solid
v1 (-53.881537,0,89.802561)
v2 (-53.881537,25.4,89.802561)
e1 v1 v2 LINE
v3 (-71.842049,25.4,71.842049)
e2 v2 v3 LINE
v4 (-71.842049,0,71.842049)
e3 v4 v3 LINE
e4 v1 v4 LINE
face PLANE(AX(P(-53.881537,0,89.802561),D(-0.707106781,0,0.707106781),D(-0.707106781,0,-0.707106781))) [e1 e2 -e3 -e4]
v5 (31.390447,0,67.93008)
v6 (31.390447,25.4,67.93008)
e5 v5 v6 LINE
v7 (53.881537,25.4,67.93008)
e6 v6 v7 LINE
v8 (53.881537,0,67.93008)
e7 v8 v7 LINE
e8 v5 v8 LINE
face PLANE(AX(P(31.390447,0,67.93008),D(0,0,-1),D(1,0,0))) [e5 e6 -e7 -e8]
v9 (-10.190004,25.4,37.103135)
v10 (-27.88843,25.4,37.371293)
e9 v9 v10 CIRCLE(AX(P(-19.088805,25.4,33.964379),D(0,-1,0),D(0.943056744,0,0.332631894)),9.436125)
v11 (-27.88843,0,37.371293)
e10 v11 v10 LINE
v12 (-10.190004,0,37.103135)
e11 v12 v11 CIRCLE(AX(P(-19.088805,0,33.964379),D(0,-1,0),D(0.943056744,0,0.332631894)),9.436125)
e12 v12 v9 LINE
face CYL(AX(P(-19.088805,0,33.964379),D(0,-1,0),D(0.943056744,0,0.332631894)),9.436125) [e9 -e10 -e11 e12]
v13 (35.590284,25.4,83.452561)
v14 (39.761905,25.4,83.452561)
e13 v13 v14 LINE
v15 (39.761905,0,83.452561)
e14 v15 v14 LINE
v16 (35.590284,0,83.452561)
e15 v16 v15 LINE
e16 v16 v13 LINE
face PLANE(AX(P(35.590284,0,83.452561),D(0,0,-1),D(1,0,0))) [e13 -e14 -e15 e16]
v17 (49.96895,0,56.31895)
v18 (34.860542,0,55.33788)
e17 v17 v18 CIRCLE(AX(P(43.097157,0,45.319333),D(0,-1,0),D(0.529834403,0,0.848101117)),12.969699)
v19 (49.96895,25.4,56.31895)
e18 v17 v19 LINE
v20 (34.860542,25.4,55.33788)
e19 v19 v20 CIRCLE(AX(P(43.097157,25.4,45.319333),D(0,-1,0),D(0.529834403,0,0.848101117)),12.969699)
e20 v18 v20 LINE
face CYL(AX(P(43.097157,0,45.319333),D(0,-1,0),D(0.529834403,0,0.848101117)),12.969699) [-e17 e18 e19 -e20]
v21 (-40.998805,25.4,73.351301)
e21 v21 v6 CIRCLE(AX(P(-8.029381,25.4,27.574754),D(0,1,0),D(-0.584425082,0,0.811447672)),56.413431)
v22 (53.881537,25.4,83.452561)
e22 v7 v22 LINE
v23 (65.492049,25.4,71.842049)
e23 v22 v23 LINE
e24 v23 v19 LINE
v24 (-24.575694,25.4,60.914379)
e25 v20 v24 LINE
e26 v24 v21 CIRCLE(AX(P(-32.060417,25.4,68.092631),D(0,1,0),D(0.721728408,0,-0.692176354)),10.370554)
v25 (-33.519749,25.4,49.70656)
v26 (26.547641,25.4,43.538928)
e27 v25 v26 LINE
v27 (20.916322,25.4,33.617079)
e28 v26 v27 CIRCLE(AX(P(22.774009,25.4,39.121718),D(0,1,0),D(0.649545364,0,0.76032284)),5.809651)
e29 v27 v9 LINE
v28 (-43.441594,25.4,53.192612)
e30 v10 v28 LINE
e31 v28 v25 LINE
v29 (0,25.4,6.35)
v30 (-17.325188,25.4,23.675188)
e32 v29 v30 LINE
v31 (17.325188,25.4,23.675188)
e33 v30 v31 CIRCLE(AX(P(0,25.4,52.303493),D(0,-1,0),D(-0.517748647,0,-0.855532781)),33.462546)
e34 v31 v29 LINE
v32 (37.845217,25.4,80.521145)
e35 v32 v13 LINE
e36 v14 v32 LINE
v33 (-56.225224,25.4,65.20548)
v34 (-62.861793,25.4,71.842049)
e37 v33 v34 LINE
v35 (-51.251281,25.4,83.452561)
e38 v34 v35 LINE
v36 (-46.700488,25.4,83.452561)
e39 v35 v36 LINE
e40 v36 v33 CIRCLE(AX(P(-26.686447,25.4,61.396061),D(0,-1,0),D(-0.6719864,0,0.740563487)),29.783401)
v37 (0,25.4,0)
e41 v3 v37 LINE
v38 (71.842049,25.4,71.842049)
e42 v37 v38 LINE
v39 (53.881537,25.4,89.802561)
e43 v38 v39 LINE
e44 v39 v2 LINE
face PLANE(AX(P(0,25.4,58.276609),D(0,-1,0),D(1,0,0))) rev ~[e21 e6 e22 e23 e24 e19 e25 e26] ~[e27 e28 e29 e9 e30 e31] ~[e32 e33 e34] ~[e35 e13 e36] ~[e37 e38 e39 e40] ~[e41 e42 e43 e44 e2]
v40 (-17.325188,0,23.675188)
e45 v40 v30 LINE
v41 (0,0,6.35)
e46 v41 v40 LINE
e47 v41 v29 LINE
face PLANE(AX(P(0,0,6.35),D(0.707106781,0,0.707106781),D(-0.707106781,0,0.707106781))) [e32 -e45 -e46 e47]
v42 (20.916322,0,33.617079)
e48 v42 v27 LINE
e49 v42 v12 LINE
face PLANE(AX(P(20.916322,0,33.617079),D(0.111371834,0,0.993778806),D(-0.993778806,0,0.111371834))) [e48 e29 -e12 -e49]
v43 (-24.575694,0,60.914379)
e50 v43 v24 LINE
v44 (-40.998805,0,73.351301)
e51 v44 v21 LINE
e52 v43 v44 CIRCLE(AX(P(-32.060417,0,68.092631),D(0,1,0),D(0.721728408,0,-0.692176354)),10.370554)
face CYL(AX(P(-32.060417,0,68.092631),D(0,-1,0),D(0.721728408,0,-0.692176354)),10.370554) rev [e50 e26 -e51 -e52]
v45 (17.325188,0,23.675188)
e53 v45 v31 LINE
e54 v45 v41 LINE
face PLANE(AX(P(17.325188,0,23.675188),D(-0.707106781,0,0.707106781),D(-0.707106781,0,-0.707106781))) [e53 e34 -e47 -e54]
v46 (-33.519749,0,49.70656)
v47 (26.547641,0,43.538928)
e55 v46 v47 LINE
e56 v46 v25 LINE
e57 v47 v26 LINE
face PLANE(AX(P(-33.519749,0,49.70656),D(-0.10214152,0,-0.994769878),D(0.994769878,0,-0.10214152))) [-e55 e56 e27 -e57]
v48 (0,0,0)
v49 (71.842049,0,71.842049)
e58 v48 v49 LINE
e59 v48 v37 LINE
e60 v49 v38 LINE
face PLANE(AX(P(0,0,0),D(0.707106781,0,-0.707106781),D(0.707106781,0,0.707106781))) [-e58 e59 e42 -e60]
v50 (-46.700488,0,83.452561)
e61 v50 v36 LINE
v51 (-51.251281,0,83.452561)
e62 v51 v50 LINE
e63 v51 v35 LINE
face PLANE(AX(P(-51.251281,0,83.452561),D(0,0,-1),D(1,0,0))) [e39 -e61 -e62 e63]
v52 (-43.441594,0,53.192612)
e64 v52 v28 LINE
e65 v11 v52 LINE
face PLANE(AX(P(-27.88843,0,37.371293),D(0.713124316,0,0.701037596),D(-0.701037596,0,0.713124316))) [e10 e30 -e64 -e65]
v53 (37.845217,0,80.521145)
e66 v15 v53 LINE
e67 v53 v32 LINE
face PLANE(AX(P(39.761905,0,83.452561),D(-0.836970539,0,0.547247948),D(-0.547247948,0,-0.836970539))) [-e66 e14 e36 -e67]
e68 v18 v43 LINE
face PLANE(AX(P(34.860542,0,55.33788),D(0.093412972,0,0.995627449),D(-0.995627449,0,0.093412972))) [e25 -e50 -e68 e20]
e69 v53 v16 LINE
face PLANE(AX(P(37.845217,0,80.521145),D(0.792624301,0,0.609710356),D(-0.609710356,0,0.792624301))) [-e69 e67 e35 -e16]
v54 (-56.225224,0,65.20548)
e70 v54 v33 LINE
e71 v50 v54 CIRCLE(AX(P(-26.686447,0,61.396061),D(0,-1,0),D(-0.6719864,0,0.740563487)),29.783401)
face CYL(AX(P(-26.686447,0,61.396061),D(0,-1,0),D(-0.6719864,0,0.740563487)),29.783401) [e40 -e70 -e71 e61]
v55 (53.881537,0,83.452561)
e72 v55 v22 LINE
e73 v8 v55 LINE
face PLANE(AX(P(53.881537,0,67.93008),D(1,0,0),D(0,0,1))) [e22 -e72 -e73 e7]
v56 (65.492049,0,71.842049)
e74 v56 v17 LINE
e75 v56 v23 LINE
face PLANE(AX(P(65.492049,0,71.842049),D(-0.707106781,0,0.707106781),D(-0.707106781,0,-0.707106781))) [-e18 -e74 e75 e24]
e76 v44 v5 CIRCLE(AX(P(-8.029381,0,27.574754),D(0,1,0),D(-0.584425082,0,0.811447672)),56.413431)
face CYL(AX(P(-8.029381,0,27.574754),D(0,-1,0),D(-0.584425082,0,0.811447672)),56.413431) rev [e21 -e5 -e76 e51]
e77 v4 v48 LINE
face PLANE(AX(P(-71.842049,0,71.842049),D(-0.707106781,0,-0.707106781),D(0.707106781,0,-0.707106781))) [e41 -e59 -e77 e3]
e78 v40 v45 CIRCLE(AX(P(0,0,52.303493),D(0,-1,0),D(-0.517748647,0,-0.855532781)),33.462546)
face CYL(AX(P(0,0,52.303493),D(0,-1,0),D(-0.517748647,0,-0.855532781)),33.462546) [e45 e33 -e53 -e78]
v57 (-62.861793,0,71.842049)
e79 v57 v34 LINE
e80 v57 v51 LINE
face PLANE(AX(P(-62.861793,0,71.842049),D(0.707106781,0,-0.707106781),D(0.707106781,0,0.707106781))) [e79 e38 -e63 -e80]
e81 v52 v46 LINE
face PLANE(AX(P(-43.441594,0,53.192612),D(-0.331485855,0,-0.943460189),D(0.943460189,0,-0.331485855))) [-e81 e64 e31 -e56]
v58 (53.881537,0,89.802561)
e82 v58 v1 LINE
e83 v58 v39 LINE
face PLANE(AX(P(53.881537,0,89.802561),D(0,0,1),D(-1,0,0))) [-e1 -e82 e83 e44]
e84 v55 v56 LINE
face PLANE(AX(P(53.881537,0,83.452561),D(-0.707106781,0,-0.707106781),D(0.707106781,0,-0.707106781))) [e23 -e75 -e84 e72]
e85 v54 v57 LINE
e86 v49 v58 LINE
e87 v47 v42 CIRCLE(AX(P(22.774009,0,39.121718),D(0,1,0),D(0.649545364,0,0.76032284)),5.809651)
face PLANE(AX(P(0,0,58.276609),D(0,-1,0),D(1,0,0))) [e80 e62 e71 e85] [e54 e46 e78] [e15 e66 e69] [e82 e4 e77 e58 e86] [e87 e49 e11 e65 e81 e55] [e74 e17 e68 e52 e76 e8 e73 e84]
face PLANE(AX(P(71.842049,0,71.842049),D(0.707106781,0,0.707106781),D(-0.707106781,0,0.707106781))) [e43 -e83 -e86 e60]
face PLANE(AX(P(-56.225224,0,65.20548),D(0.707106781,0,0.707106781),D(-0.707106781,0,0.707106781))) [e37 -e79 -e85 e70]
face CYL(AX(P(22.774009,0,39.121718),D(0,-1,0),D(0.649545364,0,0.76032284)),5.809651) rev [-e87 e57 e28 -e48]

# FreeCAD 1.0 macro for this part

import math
import FreeCAD as App
import Part
import Sketcher
from FreeCAD import Vector
Q = App.Units.Quantity


def add_polygon(sketch, points):
    """Adds a closed chain of lines whose ends are joined by coincident constraints."""
    first, n = sketch.GeometryCount, len(points)
    for a, b in zip(points, points[1:] + points[:1]):
        sketch.addGeometry(Part.LineSegment(App.Vector(*a, 0), App.Vector(*b, 0)), False)
    for i in range(n):
        sketch.addConstraint(Sketcher.Constraint("Coincident", first + i, 2, first + (i + 1) % n, 1))

doc = App.newDocument("Part")
params = doc.addObject("Spreadsheet::Sheet", "Params")
for row, (alias, value) in enumerate([
    ("sketch1_length", "4 in"),
    ("sketch1_length2", "1 in"),
    ("pad1_length", "1 in"),
], start=1):
    params.set(f"A{row}", alias)
    params.set(f"B{row}", "=" + value)
    params.setAlias(f"B{row}", alias)

body = doc.addObject("PartDesign::Body", "Body")

sketch1 = body.newObject("Sketcher::SketchObject", "Sketch")
sketch1.AttachmentSupport = (doc.getObject("XZ_Plane"), [""])
sketch1.MapMode = "FlatFace"
add_polygon(sketch1, [(-71.842049, 71.842049), (0, 0), (71.842049, 71.842049), (53.881537, 89.802561), (-53.881537, 89.802561)])
sketch1.addGeometry(Part.ArcOfCircle(Part.Circle(Vector(0, 52.303493, 0), Vector(0, 0, 1), 33.462546), math.radians(-121.181356), math.radians(-58.818644)), False)
sketch1.addGeometry(Part.LineSegment(Vector(17.325188, 23.675188, 0), Vector(0, 6.35, 0)), False)
sketch1.addGeometry(Part.LineSegment(Vector(0, 6.35, 0), Vector(-17.325188, 23.675188, 0)), False)
sketch1.addGeometry(Part.ArcOfCircle(Part.Circle(Vector(-19.088805, 33.964379, 0), Vector(0, 0, 1), 9.436125), math.radians(19.428599), math.radians(158.835298)), False)
sketch1.addGeometry(Part.LineSegment(Vector(-27.88843, 37.371293, 0), Vector(-43.441594, 53.192612, 0)), False)
sketch1.addGeometry(Part.LineSegment(Vector(-43.441594, 53.192612, 0), Vector(-33.519749, 49.70656, 0)), False)
sketch1.addGeometry(Part.LineSegment(Vector(-33.519749, 49.70656, 0), Vector(26.547641, 43.538928, 0)), False)
sketch1.addGeometry(Part.ArcOfCircle(Part.Circle(Vector(22.774009, 39.121718, 0), Vector(0, 0, 1), 5.809651), math.radians(-108.648338), math.radians(49.492667)), False)
sketch1.addGeometry(Part.LineSegment(Vector(20.916322, 33.617079, 0), Vector(-10.190004, 37.103135, 0)), False)
sketch1.addGeometry(Part.LineSegment(Vector(-51.251281, 83.452561, 0), Vector(-46.700488, 83.452561, 0)), False)
sketch1.addGeometry(Part.ArcOfCircle(Part.Circle(Vector(-26.686447, 61.396061, 0), Vector(0, 0, 1), 29.783401), math.radians(132.220562), math.radians(172.651506)), False)
sketch1.addGeometry(Part.LineSegment(Vector(-56.225224, 65.20548, 0), Vector(-62.861793, 71.842049, 0)), False)
sketch1.addGeometry(Part.LineSegment(Vector(-62.861793, 71.842049, 0), Vector(-51.251281, 83.452561, 0)), False)
sketch1.addGeometry(Part.LineSegment(Vector(31.390447, 67.93008, 0), Vector(53.881537, 67.93008, 0)), False)
sketch1.addGeometry(Part.LineSegment(Vector(53.881537, 67.93008, 0), Vector(53.881537, 83.452561, 0)), False)
sketch1.addGeometry(Part.LineSegment(Vector(53.881537, 83.452561, 0), Vector(65.492049, 71.842049, 0)), False)
sketch1.addGeometry(Part.LineSegment(Vector(65.492049, 71.842049, 0), Vector(49.96895, 56.31895, 0)), False)
sketch1.addGeometry(Part.ArcOfCircle(Part.Circle(Vector(43.097157, 45.319333, 0), Vector(0, 0, 1), 12.969699), math.radians(58.005733), math.radians(129.424879)), False)
sketch1.addGeometry(Part.LineSegment(Vector(34.860542, 55.33788, 0), Vector(-24.575694, 60.914379, 0)), False)
sketch1.addGeometry(Part.ArcOfCircle(Part.Circle(Vector(-32.060417, 68.092631, 0), Vector(0, 0, 1), 10.370554), math.radians(149.53067), math.radians(316.197366)), False)
sketch1.addGeometry(Part.ArcOfCircle(Part.Circle(Vector(-8.029381, 27.574754, 0), Vector(0, 0, 1), 56.413431), math.radians(45.671859), math.radians(125.762385)), False)
add_polygon(sketch1, [(39.761905, 83.452561), (37.845217, 80.521145), (35.590284, 83.452561)])
sketch1.addConstraint(Sketcher.Constraint("Coincident", 5, 2, 6, 1))
sketch1.addConstraint(Sketcher.Constraint("Coincident", 6, 2, 7, 1))
sketch1.addConstraint(Sketcher.Constraint("Coincident", 7, 2, 5, 1))
sketch1.addConstraint(Sketcher.Constraint("Coincident", 8, 2, 9, 1))
sketch1.addConstraint(Sketcher.Constraint("Coincident", 9, 2, 10, 1))
sketch1.addConstraint(Sketcher.Constraint("Coincident", 10, 2, 11, 1))
sketch1.addConstraint(Sketcher.Constraint("Coincident", 11, 2, 12, 2))
sketch1.addConstraint(Sketcher.Constraint("Coincident", 12, 1, 13, 1))
sketch1.addConstraint(Sketcher.Constraint("Coincident", 13, 2, 8, 1))
sketch1.addConstraint(Sketcher.Constraint("Coincident", 14, 2, 15, 1))
sketch1.addConstraint(Sketcher.Constraint("Coincident", 15, 2, 16, 1))
sketch1.addConstraint(Sketcher.Constraint("Coincident", 16, 2, 17, 1))
sketch1.addConstraint(Sketcher.Constraint("Coincident", 17, 2, 14, 1))
sketch1.addConstraint(Sketcher.Constraint("Coincident", 18, 2, 19, 1))
sketch1.addConstraint(Sketcher.Constraint("Coincident", 19, 2, 20, 1))
sketch1.addConstraint(Sketcher.Constraint("Coincident", 20, 2, 21, 1))
sketch1.addConstraint(Sketcher.Constraint("Coincident", 21, 2, 22, 1))
sketch1.addConstraint(Sketcher.Constraint("Coincident", 22, 2, 23, 1))
sketch1.addConstraint(Sketcher.Constraint("Coincident", 23, 2, 24, 2))
sketch1.addConstraint(Sketcher.Constraint("Coincident", 24, 1, 25, 2))
sketch1.addConstraint(Sketcher.Constraint("Coincident", 25, 1, 18, 1))
sketch1.addConstraint(Sketcher.Constraint("Horizontal", 3))
sketch1.addConstraint(Sketcher.Constraint("Horizontal", 14))
sketch1.addConstraint(Sketcher.Constraint("Horizontal", 18))
sketch1.addConstraint(Sketcher.Constraint("Vertical", 19))
sketch1.addConstraint(Sketcher.Constraint("Horizontal", 28))
sketch1.addConstraint(Sketcher.Constraint("Coincident", 0, 2, -1, 1))
sketch1.addConstraint(Sketcher.Constraint("Symmetric", 1, 2, 4, 2, -2))
sketch1.addConstraint(Sketcher.Constraint("Symmetric", 5, 2, 7, 2, -2))
sketch1.addConstraint(Sketcher.Constraint("PointOnObject", 6, 2, -2))
sketch1.addConstraint(Sketcher.Constraint("Perpendicular", 0, 1))
sketch1.addConstraint(Sketcher.Constraint("Perpendicular", 1, 2))
sketch1.addConstraint(Sketcher.Constraint("Perpendicular", 2, 4))
sketch1.addConstraint(Sketcher.Constraint("Parallel", 4, 6))
sketch1.addConstraint(Sketcher.Constraint("Parallel", 7, 16))
sketch1.addConstraint(Sketcher.Constraint("Perpendicular", 16, 17))
sketch1.addConstraint(Sketcher.Constraint("Perpendicular", 17, 20))
sketch1.addConstraint(Sketcher.Constraint("Perpendicular", 20, 21))
sketch1.addConstraint(Sketcher.Constraint("Horizontal", 4, 2, 16, 2))
sketch1.addConstraint(Sketcher.Constraint("Horizontal", 17, 2, 19, 2))
sketch1.addConstraint(Sketcher.Constraint("Horizontal", 16, 2, 20, 2))
sketch1.addConstraint(Sketcher.Constraint("Horizontal", 19, 2, 27, 2))
sketch1.addConstraint(Sketcher.Constraint("Vertical", 2, 2, 18, 2))
sketch1.addConstraint(Sketcher.Constraint("Distance", 0, Q("4 in")))
sketch1.addConstraint(Sketcher.Constraint("Distance", 2, Q("1 in")))
sketch1.addConstraint(Sketcher.Constraint("DistanceY", -1, 1, 6, 2, Q("0.25 in")))
sketch1.addConstraint(Sketcher.Constraint("Angle", 23, Q("174.640016 deg")))
sketch1.addConstraint(Sketcher.Constraint("Radius", 15, 29.783401))
sketch1.addConstraint(Sketcher.Constraint("Radius", 22, 12.969699))
sketch1.addConstraint(Sketcher.Constraint("DistanceY", 14, 2, 3, 2, Q("0.25 in")))
sketch1.addConstraint(Sketcher.Constraint("Radius", 12, 5.809651))
sketch1.addConstraint(Sketcher.Constraint("Radius", 25, 56.413431))
sketch1.addConstraint(Sketcher.Constraint("Radius", 5, 33.462546))
sketch1.addConstraint(Sketcher.Constraint("Radius", 8, 9.436125))
sketch1.addConstraint(Sketcher.Constraint("Radius", 24, 10.370554))
sketch1.addConstraint(Sketcher.Constraint("DistanceX", 25, 3, 11, 2, Q("1.3613001 in")))
sketch1.addConstraint(Sketcher.Constraint("Distance", 11, 60.383202))
sketch1.addConstraint(Sketcher.Constraint("DistanceX", 18, 1, 18, 2, 22.49109))
sketch1.addConstraint(Sketcher.Constraint("DistanceX", 28, 1, 28, 2, 4.171621))
sketch1.addConstraint(Sketcher.Constraint("DistanceY", 19, 1, 19, 2, 15.522481))
sketch1.addConstraint(Sketcher.Constraint("DistanceY", -1, 1, 24, 1, 73.351301))
sketch1.addConstraint(Sketcher.Constraint("DistanceY", 15, 3, 2, 2, 28.4065))
sketch1.addConstraint(Sketcher.Constraint("DistanceX", 4, 2, 15, 3, 45.155602))
sketch1.addConstraint(Sketcher.Constraint("DistanceX", 10, 2, 15, 3, 6.833302))
sketch1.addConstraint(Sketcher.Constraint("DistanceY", 10, 2, 15, 3, 11.689501))
sketch1.addConstraint(Sketcher.Constraint("DistanceX", 8, 3, 13, 2, 8.898801))
sketch1.addConstraint(Sketcher.Constraint("DistanceX", 16, 2, 9, 2, 19.420199))
sketch1.addConstraint(Sketcher.Constraint("DistanceX", 21, 2, 20, 2, 15.523099))
sketch1.addConstraint(Sketcher.Constraint("DistanceX", 11, 2, 22, 2, 8.312901))
sketch1.addConstraint(Sketcher.Constraint("DistanceY", 22, 2, 18, 2, 12.5922))
sketch1.addConstraint(Sketcher.Constraint("DistanceX", 9, 2, 23, 2, 18.8659))
sketch1.addConstraint(Sketcher.Constraint("Distance", 9, 22.18592))
sketch1.addConstraint(Sketcher.Constraint("DistanceX", 14, 1, 14, 2, 4.550793))
sketch1.addConstraint(Sketcher.Constraint("DistanceY", -1, 1, 8, 3, 33.964379))
sketch1.addConstraint(Sketcher.Constraint("DistanceX", -1, 1, 12, 3, 22.774009))
sketch1.addConstraint(Sketcher.Constraint("DistanceY", -1, 1, 24, 3, 68.092631))
sketch1.addConstraint(Sketcher.Constraint("DistanceY", -1, 1, 5, 2, 23.675188))
sketch1.addConstraint(Sketcher.Constraint("DistanceX", 8, 2, -1, 1, 27.88843))
sketch1.addConstraint(Sketcher.Constraint("DistanceY", -1, 1, 9, 2, 53.192612))
sketch1.addConstraint(Sketcher.Constraint("DistanceX", -1, 1, 12, 1, 20.916322))
sketch1.addConstraint(Sketcher.Constraint("DistanceX", 25, 1, 26, 2, 6.45477))
sketch1.addConstraint(Sketcher.Constraint("DistanceX", 26, 2, 28, 2, 1.916688))
sketch1.addConstraint(Sketcher.Constraint("Distance", 26, 3.502412))
sketch1.setExpression("Constraints[51]", "Params.sketch1_length")
sketch1.setExpression("Constraints[52]", "Params.sketch1_length2")
pad1 = body.newObject("PartDesign::Pad", "Pad")
pad1.Profile = sketch1
pad1.setExpression("Length", "Params.pad1_length")
pad1.Reversed = True

doc.recompute()
